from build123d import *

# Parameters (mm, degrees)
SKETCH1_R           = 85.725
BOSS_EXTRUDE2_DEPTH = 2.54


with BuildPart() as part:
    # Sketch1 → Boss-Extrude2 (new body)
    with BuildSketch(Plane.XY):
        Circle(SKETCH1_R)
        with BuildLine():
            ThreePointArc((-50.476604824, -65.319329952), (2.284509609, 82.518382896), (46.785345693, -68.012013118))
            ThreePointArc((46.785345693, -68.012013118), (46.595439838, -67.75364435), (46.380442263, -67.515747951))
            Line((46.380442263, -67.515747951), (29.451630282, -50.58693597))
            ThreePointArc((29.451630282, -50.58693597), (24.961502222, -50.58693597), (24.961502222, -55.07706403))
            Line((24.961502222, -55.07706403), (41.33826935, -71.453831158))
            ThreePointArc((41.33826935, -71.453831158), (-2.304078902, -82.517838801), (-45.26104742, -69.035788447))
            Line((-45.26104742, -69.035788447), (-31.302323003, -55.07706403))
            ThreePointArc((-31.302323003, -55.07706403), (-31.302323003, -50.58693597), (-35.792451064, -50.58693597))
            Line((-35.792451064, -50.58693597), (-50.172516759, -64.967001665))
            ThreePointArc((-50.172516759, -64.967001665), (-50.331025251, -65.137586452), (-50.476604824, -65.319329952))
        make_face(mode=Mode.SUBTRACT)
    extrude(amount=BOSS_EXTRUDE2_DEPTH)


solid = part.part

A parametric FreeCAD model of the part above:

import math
import FreeCAD as App
import Part
import Sketcher

V = App.Vector
Q = App.Units.Quantity

doc = App.newDocument("Part")
body = doc.addObject("PartDesign::Body", "Body")

sketch1 = doc.addObject("Sketcher::SketchObject", "Sketch")
body.addObject(sketch1)
sketch1.AttachmentSupport = (doc.XY_Plane, [""])
sketch1.MapMode = "FlatFace"
sketch1.addGeometry([
    Part.Circle(V(0, 0, 0), V(0, 0, 1), 85.725),
    Part.ArcOfCircle(Part.Circle(V(-47.927453, -67.212066, 0), V(0, 0, 1), 3.175), math.radians(135), math.radians(143.406254)),
    Part.ArcOfCircle(Part.Circle(V(0, 0, 0), V(0, 0, 1), 82.55), math.radians(-55.475985), math.radians(232.304344)),
    Part.ArcOfCircle(Part.Circle(V(44.135378, -69.760812, 0), V(0, 0, 1), 3.175), math.radians(33.422105), math.radians(45)),
    Part.LineSegment(V(46.380442, -67.515748, 0), V(29.45163, -50.586936, 0)),
    Part.ArcOfCircle(Part.Circle(V(27.206566, -52.832, 0), V(0, 0, 1), 3.175), math.radians(45), math.radians(225)),
    Part.LineSegment(V(24.961502, -55.077064, 0), V(41.338269, -71.453831, 0)),
    Part.ArcOfCircle(Part.Circle(V(0, 0, 0), V(0, 0, 1), 82.55), math.radians(-123.249536), math.radians(-59.94928)),
    Part.LineSegment(V(-45.261047, -69.035788, 0), V(-31.302323, -55.077064, 0)),
    Part.ArcOfCircle(Part.Circle(V(-33.547387, -52.832, 0), V(0, 0, 1), 3.175), math.radians(-45), math.radians(135)),
    Part.LineSegment(V(-35.792451, -50.586936, 0), V(-50.172517, -64.967002, 0)),
], False)
sketch1.addConstraint([
    Sketcher.Constraint("Coincident", 1, 2, 2, 2),
    Sketcher.Constraint("Coincident", 2, 1, 3, 1),
    Sketcher.Constraint("Tangent", 3, 2, 4, 1),
    Sketcher.Constraint("Tangent", 4, 2, 5, 1),
    Sketcher.Constraint("Tangent", 5, 2, 6, 1),
    Sketcher.Constraint("Coincident", 6, 2, 7, 2),
    Sketcher.Constraint("Coincident", 7, 1, 8, 1),
    Sketcher.Constraint("Tangent", 8, 2, 9, 1),
    Sketcher.Constraint("Tangent", 9, 2, 10, 1),
    Sketcher.Constraint("Tangent", 10, 2, 1, 1),
    Sketcher.Constraint("Coincident", 0, 3, -1, 1),
    Sketcher.Constraint("Coincident", 2, 3, -1, 1),
    Sketcher.Constraint("Coincident", 7, 3, -1, 1),
    Sketcher.Constraint("Equal", 1, 3),
    Sketcher.Constraint("Equal", 3, 5),
    Sketcher.Constraint("Equal", 2, 7),
    Sketcher.Constraint("Equal", 5, 9),
    Sketcher.Constraint("Parallel", 4, 6),
    Sketcher.Constraint("Perpendicular", 6, 8),
    Sketcher.Constraint("Parallel", 8, 10),
    Sketcher.Constraint("Horizontal", 5, 3, 9, 3),
    Sketcher.Constraint("Horizontal", 5, 2, 8, 2),
    Sketcher.Constraint("Diameter", 0, Q("6.75 in")),
    Sketcher.Constraint("Radius", 2, Q("3.25 in")),
    Sketcher.Constraint("Radius", 1, Q("0.125 in")),
    Sketcher.Constraint("DistanceY", 5, 3, -1, 1, Q("2.08 in")),
    Sketcher.Constraint("DistanceY", 7, 1, 1, 3, Q("0.0718001 in")),
    Sketcher.Constraint("DistanceY", 10, 2, -1, 1, 64.967002),
    Sketcher.Constraint("DistanceY", 3, 3, 2, 1, 1.748799),
    Sketcher.Constraint("DistanceX", -1, 1, 3, 3, 44.135378),
])
pad1 = doc.addObject("PartDesign::Pad", "Pad")
body.addObject(pad1)
pad1.Profile = sketch1
pad1.Length = Q("0.1 in")

doc.recompute()
